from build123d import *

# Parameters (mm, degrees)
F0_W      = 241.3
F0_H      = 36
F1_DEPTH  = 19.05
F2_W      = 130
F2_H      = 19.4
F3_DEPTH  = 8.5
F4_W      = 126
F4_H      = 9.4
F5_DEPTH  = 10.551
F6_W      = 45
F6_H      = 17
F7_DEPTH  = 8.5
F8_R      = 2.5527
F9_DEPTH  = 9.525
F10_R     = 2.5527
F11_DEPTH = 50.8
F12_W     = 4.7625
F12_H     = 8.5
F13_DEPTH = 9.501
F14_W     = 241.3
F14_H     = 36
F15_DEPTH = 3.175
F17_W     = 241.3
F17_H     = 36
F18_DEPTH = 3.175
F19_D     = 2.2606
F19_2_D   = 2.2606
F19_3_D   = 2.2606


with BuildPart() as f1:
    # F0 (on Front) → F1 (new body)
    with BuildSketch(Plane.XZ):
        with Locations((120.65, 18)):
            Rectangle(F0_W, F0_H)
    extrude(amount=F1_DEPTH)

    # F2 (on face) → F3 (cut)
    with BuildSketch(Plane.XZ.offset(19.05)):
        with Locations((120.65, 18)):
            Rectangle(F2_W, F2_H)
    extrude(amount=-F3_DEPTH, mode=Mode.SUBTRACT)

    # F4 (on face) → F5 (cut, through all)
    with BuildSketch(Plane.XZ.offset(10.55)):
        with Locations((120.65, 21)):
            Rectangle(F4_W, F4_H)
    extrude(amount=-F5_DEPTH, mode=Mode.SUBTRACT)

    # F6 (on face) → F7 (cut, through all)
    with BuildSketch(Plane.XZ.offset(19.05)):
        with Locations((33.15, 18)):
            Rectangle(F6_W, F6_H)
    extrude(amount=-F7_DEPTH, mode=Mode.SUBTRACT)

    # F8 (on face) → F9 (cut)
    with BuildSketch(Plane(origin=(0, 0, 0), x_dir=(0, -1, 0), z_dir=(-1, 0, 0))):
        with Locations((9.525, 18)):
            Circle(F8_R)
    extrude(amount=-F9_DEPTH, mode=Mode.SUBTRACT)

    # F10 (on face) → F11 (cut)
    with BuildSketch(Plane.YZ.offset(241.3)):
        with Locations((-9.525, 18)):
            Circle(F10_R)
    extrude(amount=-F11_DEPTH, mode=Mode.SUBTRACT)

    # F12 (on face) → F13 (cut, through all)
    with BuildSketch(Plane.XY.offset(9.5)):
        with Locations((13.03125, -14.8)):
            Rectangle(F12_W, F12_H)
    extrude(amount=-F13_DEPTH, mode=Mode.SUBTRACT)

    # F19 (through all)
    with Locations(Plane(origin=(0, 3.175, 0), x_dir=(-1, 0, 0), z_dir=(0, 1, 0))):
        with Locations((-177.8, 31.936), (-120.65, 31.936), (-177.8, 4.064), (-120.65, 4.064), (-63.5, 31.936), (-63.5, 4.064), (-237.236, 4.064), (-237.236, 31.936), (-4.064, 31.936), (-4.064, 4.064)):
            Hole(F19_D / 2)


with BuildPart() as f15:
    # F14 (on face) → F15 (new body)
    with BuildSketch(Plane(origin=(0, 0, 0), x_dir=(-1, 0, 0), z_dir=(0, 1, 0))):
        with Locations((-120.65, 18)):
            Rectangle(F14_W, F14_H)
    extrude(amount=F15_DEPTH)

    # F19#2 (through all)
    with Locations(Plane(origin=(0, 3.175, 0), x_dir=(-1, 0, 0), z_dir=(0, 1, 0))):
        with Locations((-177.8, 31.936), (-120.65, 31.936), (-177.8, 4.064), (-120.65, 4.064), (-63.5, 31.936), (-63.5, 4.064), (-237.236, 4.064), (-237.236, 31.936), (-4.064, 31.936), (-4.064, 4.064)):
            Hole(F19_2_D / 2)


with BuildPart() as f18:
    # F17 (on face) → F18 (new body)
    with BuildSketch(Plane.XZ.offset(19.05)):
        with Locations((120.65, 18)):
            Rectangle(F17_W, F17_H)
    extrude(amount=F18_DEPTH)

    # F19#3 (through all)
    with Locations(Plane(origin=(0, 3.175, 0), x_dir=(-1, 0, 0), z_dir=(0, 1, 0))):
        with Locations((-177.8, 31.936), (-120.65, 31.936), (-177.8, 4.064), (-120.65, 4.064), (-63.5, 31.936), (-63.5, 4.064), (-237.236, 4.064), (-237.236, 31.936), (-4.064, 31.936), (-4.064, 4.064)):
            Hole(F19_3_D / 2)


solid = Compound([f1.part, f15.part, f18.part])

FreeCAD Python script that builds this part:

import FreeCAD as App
import Part
import Sketcher


def add_polygon(sketch, points):
    """Adds a closed chain of lines whose ends are joined by coincident constraints."""
    first, n = sketch.GeometryCount, len(points)
    for a, b in zip(points, points[1:] + points[:1]):
        sketch.addGeometry(Part.LineSegment(App.Vector(*a, 0), App.Vector(*b, 0)), False)
    for i in range(n):
        sketch.addConstraint(Sketcher.Constraint("Coincident", first + i, 2, first + (i + 1) % n, 1))

doc = App.newDocument("Part")
body = doc.addObject("PartDesign::Body", "Body")

# Sketch on XZ plane
sketch1 = body.newObject("Sketcher::SketchObject", "Sketch")
sketch1.AttachmentSupport = (doc.getObject("XZ_Plane"), [""])
sketch1.MapMode = "FlatFace"
add_polygon(sketch1, [(0, 36), (0, 0), (241, 0), (241, 36)])  # lines 0-3
sketch1.addConstraint([
    Sketcher.Constraint("Vertical", 0),
    Sketcher.Constraint("Horizontal", 1),
    Sketcher.Constraint("Vertical", 2),
    Sketcher.Constraint("Horizontal", 3),
    Sketcher.Constraint("Coincident", 0, 2, -1, 1),
    Sketcher.Constraint("DistanceY", 0, 2, 0, 1, 36.0),
    Sketcher.Constraint("DistanceX", 1, 1, 1, 2, 241.3),
])
pad1 = body.newObject("PartDesign::Pad", "Pad")
pad1.Profile = sketch1
pad1.Length = 19.05

# Sketch on XZ plane
sketch2 = body.newObject("Sketcher::SketchObject", "Sketch001")
sketch2.AttachmentSupport = (doc.getObject("XZ_Plane"), [""])
sketch2.MapMode = "FlatFace"
sketch2.AttachmentOffset = App.Placement(App.Vector(0, 0, 19.05), App.Rotation())
add_polygon(sketch2, [(56, 28), (56, 8), (186, 8), (186, 28)])  # lines 0-3
sketch2.addConstraint([
    Sketcher.Constraint("Vertical", 0),
    Sketcher.Constraint("Horizontal", 1),
    Sketcher.Constraint("Vertical", 2),
    Sketcher.Constraint("Horizontal", 3),
    Sketcher.Constraint("DistanceX", 1, 1, 1, 2, 130.0),
    Sketcher.Constraint("DistanceY", 0, 2, 0, 1, 19.4),
    Sketcher.Constraint("DistanceY", -1, 1, 0, 2, 8.3),
    Sketcher.Constraint("DistanceX", -1, 1, 0, 2, 55.65),
])
pocket1 = body.newObject("PartDesign::Pocket", "Pocket")
pocket1.Profile = sketch2
pocket1.Length = 8.5

# Sketch on XZ plane
sketch3 = body.newObject("Sketcher::SketchObject", "Sketch002")
sketch3.AttachmentSupport = (doc.getObject("XZ_Plane"), [""])
sketch3.MapMode = "FlatFace"
sketch3.AttachmentOffset = App.Placement(App.Vector(0, 0, 10.55), App.Rotation())
add_polygon(sketch3, [(58, 26), (58, 16), (184, 16), (184, 26)])  # lines 0-3
sketch3.addConstraint([
    Sketcher.Constraint("Vertical", 0),
    Sketcher.Constraint("Horizontal", 1),
    Sketcher.Constraint("Vertical", 2),
    Sketcher.Constraint("Horizontal", 3),
    Sketcher.Constraint("DistanceX", 1, 1, 1, 2, 126.0),
    Sketcher.Constraint("DistanceY", 0, 2, 0, 1, 9.4),
    Sketcher.Constraint("DistanceY", -1, 1, 0, 2, 16.3),
    Sketcher.Constraint("DistanceX", -1, 1, 0, 2, 57.65),
])
pocket2 = body.newObject("PartDesign::Pocket", "Pocket001")
pocket2.Profile = sketch3
pocket2.Type = "ThroughAll"

# Sketch on XZ plane
sketch4 = body.newObject("Sketcher::SketchObject", "Sketch003")
sketch4.AttachmentSupport = (doc.getObject("XZ_Plane"), [""])
sketch4.MapMode = "FlatFace"
sketch4.AttachmentOffset = App.Placement(App.Vector(0, 0, 19.05), App.Rotation())
add_polygon(sketch4, [(11, 26), (11, 10), (56, 10), (56, 26)])  # lines 0-3
sketch4.addConstraint([
    Sketcher.Constraint("Vertical", 0),
    Sketcher.Constraint("Horizontal", 1),
    Sketcher.Constraint("Vertical", 2),
    Sketcher.Constraint("Horizontal", 3),
    Sketcher.Constraint("DistanceX", 1, 1, 1, 2, 45.0),
    Sketcher.Constraint("DistanceY", 0, 2, 0, 1, 17.0),
    Sketcher.Constraint("DistanceY", -1, 1, 0, 2, 9.5),
    Sketcher.Constraint("DistanceX", -1, 1, 0, 2, 10.65),
])
pocket3 = body.newObject("PartDesign::Pocket", "Pocket002")
pocket3.Profile = sketch4
pocket3.Length = 8.5

# Sketch on YZ plane
sketch5 = body.newObject("Sketcher::SketchObject", "Sketch004")
sketch5.AttachmentSupport = (doc.getObject("YZ_Plane"), [""])
sketch5.MapMode = "FlatFace"
sketch5.addGeometry(Part.Circle(App.Vector(-9.5, 18, 0), App.Vector(0, 0, 1), 2.6), False)
sketch5.addConstraint([
    Sketcher.Constraint("DistanceY", -1, 1, 0, 3, 18.0),
    Sketcher.Constraint("Diameter", 0, 5.1054),
    Sketcher.Constraint("DistanceX", 0, 3, -1, 1, 9.525),
])
pocket4 = body.newObject("PartDesign::Pocket", "Pocket003")
pocket4.Profile = sketch5
pocket4.Length = 9.525
pocket4.Reversed = True

# Sketch on YZ plane
sketch6 = body.newObject("Sketcher::SketchObject", "Sketch005")
sketch6.AttachmentSupport = (doc.getObject("YZ_Plane"), [""])
sketch6.MapMode = "FlatFace"
sketch6.AttachmentOffset = App.Placement(App.Vector(0, 0, 241.3), App.Rotation())
sketch6.addGeometry(Part.Circle(App.Vector(-9.5, 18, 0), App.Vector(0, 0, 1), 2.6), False)
sketch6.addConstraint([
    Sketcher.Constraint("DistanceY", -1, 1, 0, 3, 18.0),
    Sketcher.Constraint("Diameter", 0, 5.1054),
    Sketcher.Constraint("DistanceX", 0, 3, -1, 1, 9.525),
])
pocket5 = body.newObject("PartDesign::Pocket", "Pocket004")
pocket5.Profile = sketch6
pocket5.Length = 50.8

# Sketch on XY plane
sketch7 = body.newObject("Sketcher::SketchObject", "Sketch006")
sketch7.AttachmentSupport = (doc.getObject("XY_Plane"), [""])
sketch7.MapMode = "FlatFace"
sketch7.AttachmentOffset = App.Placement(App.Vector(0, 0, 9.5), App.Rotation())
add_polygon(sketch7, [(10.7, -10.6), (10.7, -19.1), (15.4, -19.1), (15.4, -10.6)])  # lines 0-3
sketch7.addConstraint([
    Sketcher.Constraint("Vertical", 0),
    Sketcher.Constraint("Horizontal", 1),
    Sketcher.Constraint("Vertical", 2),
    Sketcher.Constraint("Horizontal", 3),
    Sketcher.Constraint("DistanceY", 0, 2, 0, 1, 8.5),
    Sketcher.Constraint("DistanceX", -1, 1, 0, 2, 10.65),
    Sketcher.Constraint("DistanceY", 0, 2, -1, 1, 19.05),
    Sketcher.Constraint("DistanceX", 1, 1, 1, 2, 4.7625),
])
pocket6 = body.newObject("PartDesign::Pocket", "Pocket005")
pocket6.Profile = sketch7
pocket6.Type = "ThroughAll"

# Sketch on XZ plane
sketch8 = body.newObject("Sketcher::SketchObject", "Sketch007")
sketch8.AttachmentSupport = (doc.getObject("XZ_Plane"), [""])
sketch8.MapMode = "FlatFace"
sketch8.AttachmentOffset = App.Placement(App.Vector(0, 0, -3.175), App.Rotation())
sketch8.addGeometry([
    Part.Circle(App.Vector(177.8, 31.9, 0), App.Vector(0, 0, 1), 1.1),  # 0
    Part.Circle(App.Vector(120.7, 31.9, 0), App.Vector(0, 0, 1), 1.1),  # 1
    Part.Circle(App.Vector(177.8, 4.1, 0), App.Vector(0, 0, 1), 1.1),  # 2
    Part.Circle(App.Vector(120.7, 4.1, 0), App.Vector(0, 0, 1), 1.1),  # 3
    Part.Circle(App.Vector(63.5, 31.9, 0), App.Vector(0, 0, 1), 1.1),  # 4
    Part.Circle(App.Vector(63.5, 4.1, 0), App.Vector(0, 0, 1), 1.1),  # 5
    Part.Circle(App.Vector(237.2, 4.1, 0), App.Vector(0, 0, 1), 1.1),  # 6
    Part.Circle(App.Vector(237.2, 31.9, 0), App.Vector(0, 0, 1), 1.1),  # 7
    Part.Circle(App.Vector(4.1, 31.9, 0), App.Vector(0, 0, 1), 1.1),  # 8
    Part.Circle(App.Vector(4.1, 4.1, 0), App.Vector(0, 0, 1), 1.1),  # 9
], False)
sketch8.addConstraint([
    Sketcher.Constraint("Equal", 0, 1),
    Sketcher.Constraint("Equal", 1, 2),
    Sketcher.Constraint("Equal", 2, 3),
    Sketcher.Constraint("Equal", 3, 4),
    Sketcher.Constraint("Equal", 4, 5),
    Sketcher.Constraint("Equal", 5, 6),
    Sketcher.Constraint("Equal", 6, 7),
    Sketcher.Constraint("Equal", 7, 8),
    Sketcher.Constraint("Equal", 8, 9),
    Sketcher.Constraint("Horizontal", 0, 3, 1, 3),
    Sketcher.Constraint("Horizontal", 2, 3, 3, 3),
    Sketcher.Constraint("Horizontal", 1, 3, 4, 3),
    Sketcher.Constraint("Horizontal", 3, 3, 5, 3),
    Sketcher.Constraint("Horizontal", 5, 3, 6, 3),
    Sketcher.Constraint("Horizontal", 4, 3, 7, 3),
    Sketcher.Constraint("Horizontal", 7, 3, 8, 3),
    Sketcher.Constraint("Horizontal", 6, 3, 9, 3),
    Sketcher.Constraint("Vertical", 0, 3, 2, 3),
    Sketcher.Constraint("Vertical", 1, 3, 3, 3),
    Sketcher.Constraint("Vertical", 4, 3, 5, 3),
    Sketcher.Constraint("Vertical", 6, 3, 7, 3),
    Sketcher.Constraint("Vertical", 8, 3, 9, 3),
    Sketcher.Constraint("Diameter", 0, 2.2606),
    Sketcher.Constraint("DistanceX", -1, 1, 0, 3, 177.8),
    Sketcher.Constraint("DistanceX", -1, 1, 4, 3, 63.5),
    Sketcher.Constraint("DistanceX", -1, 1, 1, 3, 120.65),
    Sketcher.Constraint("DistanceY", -1, 1, 0, 3, 31.936),
    Sketcher.Constraint("DistanceY", -1, 1, 2, 3, 4.064),
    Sketcher.Constraint("DistanceX", -1, 1, 6, 3, 237.236),
    Sketcher.Constraint("DistanceX", -1, 1, 8, 3, 4.064),
])
doc.recompute()
hole = body.newObject("PartDesign::Hole", "Hole")
hole.Profile = sketch8
hole.ThreadType = "None"
hole.Diameter = 2.2606
hole.DepthType = "ThroughAll"
hole.Reversed = True
body2 = doc.addObject("PartDesign::Body", "Body001")

# Sketch on XZ plane
sketch9 = body2.newObject("Sketcher::SketchObject", "Sketch008")
sketch9.AttachmentSupport = (doc.getObject("XZ_Plane001"), [""])
sketch9.MapMode = "FlatFace"
add_polygon(sketch9, [(241, 36), (241, 0), (0, 0), (0, 36)])  # lines 0-3
sketch9.addConstraint([
    Sketcher.Constraint("Vertical", 0),
    Sketcher.Constraint("Horizontal", 1),
    Sketcher.Constraint("Vertical", 2),
    Sketcher.Constraint("Horizontal", 3),
    Sketcher.Constraint("Coincident", 1, 2, -1, 1),
    Sketcher.Constraint("DistanceY", 0, 2, 0, 1, 36.0),
    Sketcher.Constraint("DistanceX", 1, 2, 1, 1, 241.3),
])
pad2 = body2.newObject("PartDesign::Pad", "Pad001")
pad2.Profile = sketch9
pad2.Length = 3.175
pad2.Reversed = True

# Sketch on XZ plane
sketch10 = body2.newObject("Sketcher::SketchObject", "Sketch009")
sketch10.AttachmentSupport = (doc.getObject("XZ_Plane001"), [""])
sketch10.MapMode = "FlatFace"
sketch10.AttachmentOffset = App.Placement(App.Vector(0, 0, -3.175), App.Rotation())
sketch10.addGeometry([
    Part.Circle(App.Vector(177.8, 31.9, 0), App.Vector(0, 0, 1), 1.1),  # 0
    Part.Circle(App.Vector(120.7, 31.9, 0), App.Vector(0, 0, 1), 1.1),  # 1
    Part.Circle(App.Vector(177.8, 4.1, 0), App.Vector(0, 0, 1), 1.1),  # 2
    Part.Circle(App.Vector(120.7, 4.1, 0), App.Vector(0, 0, 1), 1.1),  # 3
    Part.Circle(App.Vector(63.5, 31.9, 0), App.Vector(0, 0, 1), 1.1),  # 4
    Part.Circle(App.Vector(63.5, 4.1, 0), App.Vector(0, 0, 1), 1.1),  # 5
    Part.Circle(App.Vector(237.2, 4.1, 0), App.Vector(0, 0, 1), 1.1),  # 6
    Part.Circle(App.Vector(237.2, 31.9, 0), App.Vector(0, 0, 1), 1.1),  # 7
    Part.Circle(App.Vector(4.1, 31.9, 0), App.Vector(0, 0, 1), 1.1),  # 8
    Part.Circle(App.Vector(4.1, 4.1, 0), App.Vector(0, 0, 1), 1.1),  # 9
], False)
sketch10.addConstraint([
    Sketcher.Constraint("Equal", 0, 1),
    Sketcher.Constraint("Equal", 1, 2),
    Sketcher.Constraint("Equal", 2, 3),
    Sketcher.Constraint("Equal", 3, 4),
    Sketcher.Constraint("Equal", 4, 5),
    Sketcher.Constraint("Equal", 5, 6),
    Sketcher.Constraint("Equal", 6, 7),
    Sketcher.Constraint("Equal", 7, 8),
    Sketcher.Constraint("Equal", 8, 9),
    Sketcher.Constraint("Horizontal", 0, 3, 1, 3),
    Sketcher.Constraint("Horizontal", 2, 3, 3, 3),
    Sketcher.Constraint("Horizontal", 1, 3, 4, 3),
    Sketcher.Constraint("Horizontal", 3, 3, 5, 3),
    Sketcher.Constraint("Horizontal", 5, 3, 6, 3),
    Sketcher.Constraint("Horizontal", 4, 3, 7, 3),
    Sketcher.Constraint("Horizontal", 7, 3, 8, 3),
    Sketcher.Constraint("Horizontal", 6, 3, 9, 3),
    Sketcher.Constraint("Vertical", 0, 3, 2, 3),
    Sketcher.Constraint("Vertical", 1, 3, 3, 3),
    Sketcher.Constraint("Vertical", 4, 3, 5, 3),
    Sketcher.Constraint("Vertical", 6, 3, 7, 3),
    Sketcher.Constraint("Vertical", 8, 3, 9, 3),
    Sketcher.Constraint("Diameter", 0, 2.2606),
    Sketcher.Constraint("DistanceX", -1, 1, 0, 3, 177.8),
    Sketcher.Constraint("DistanceX", -1, 1, 4, 3, 63.5),
    Sketcher.Constraint("DistanceX", -1, 1, 1, 3, 120.65),
    Sketcher.Constraint("DistanceY", -1, 1, 0, 3, 31.936),
    Sketcher.Constraint("DistanceY", -1, 1, 2, 3, 4.064),
    Sketcher.Constraint("DistanceX", -1, 1, 6, 3, 237.236),
    Sketcher.Constraint("DistanceX", -1, 1, 8, 3, 4.064),
])
doc.recompute()
hole2 = body2.newObject("PartDesign::Hole", "Hole001")
hole2.Profile = sketch10
hole2.ThreadType = "None"
hole2.Diameter = 2.2606
hole2.DepthType = "ThroughAll"
hole2.Reversed = True
body3 = doc.addObject("PartDesign::Body", "Body002")

# Sketch on XZ plane
sketch11 = body3.newObject("Sketcher::SketchObject", "Sketch010")
sketch11.AttachmentSupport = (doc.getObject("XZ_Plane002"), [""])
sketch11.MapMode = "FlatFace"
sketch11.AttachmentOffset = App.Placement(App.Vector(0, 0, 19.05), App.Rotation())
add_polygon(sketch11, [(0, 36), (0, 0), (241, 0), (241, 36)])  # lines 0-3
sketch11.addConstraint([
    Sketcher.Constraint("Vertical", 0),
    Sketcher.Constraint("Horizontal", 1),
    Sketcher.Constraint("Vertical", 2),
    Sketcher.Constraint("Horizontal", 3),
    Sketcher.Constraint("Coincident", 0, 2, -1, 1),
    Sketcher.Constraint("DistanceY", 0, 2, 0, 1, 36.0),
    Sketcher.Constraint("DistanceX", 1, 1, 1, 2, 241.3),
])
pad3 = body3.newObject("PartDesign::Pad", "Pad002")
pad3.Profile = sketch11
pad3.Length = 3.175

# Sketch on XZ plane
sketch12 = body3.newObject("Sketcher::SketchObject", "Sketch011")
sketch12.AttachmentSupport = (doc.getObject("XZ_Plane002"), [""])
sketch12.MapMode = "FlatFace"
sketch12.AttachmentOffset = App.Placement(App.Vector(0, 0, -3.175), App.Rotation())
sketch12.addGeometry([
    Part.Circle(App.Vector(177.8, 31.9, 0), App.Vector(0, 0, 1), 1.1),  # 0
    Part.Circle(App.Vector(120.7, 31.9, 0), App.Vector(0, 0, 1), 1.1),  # 1
    Part.Circle(App.Vector(177.8, 4.1, 0), App.Vector(0, 0, 1), 1.1),  # 2
    Part.Circle(App.Vector(120.7, 4.1, 0), App.Vector(0, 0, 1), 1.1),  # 3
    Part.Circle(App.Vector(63.5, 31.9, 0), App.Vector(0, 0, 1), 1.1),  # 4
    Part.Circle(App.Vector(63.5, 4.1, 0), App.Vector(0, 0, 1), 1.1),  # 5
    Part.Circle(App.Vector(237.2, 4.1, 0), App.Vector(0, 0, 1), 1.1),  # 6
    Part.Circle(App.Vector(237.2, 31.9, 0), App.Vector(0, 0, 1), 1.1),  # 7
    Part.Circle(App.Vector(4.1, 31.9, 0), App.Vector(0, 0, 1), 1.1),  # 8
    Part.Circle(App.Vector(4.1, 4.1, 0), App.Vector(0, 0, 1), 1.1),  # 9
], False)
sketch12.addConstraint([
    Sketcher.Constraint("Equal", 0, 1),
    Sketcher.Constraint("Equal", 1, 2),
    Sketcher.Constraint("Equal", 2, 3),
    Sketcher.Constraint("Equal", 3, 4),
    Sketcher.Constraint("Equal", 4, 5),
    Sketcher.Constraint("Equal", 5, 6),
    Sketcher.Constraint("Equal", 6, 7),
    Sketcher.Constraint("Equal", 7, 8),
    Sketcher.Constraint("Equal", 8, 9),
    Sketcher.Constraint("Horizontal", 0, 3, 1, 3),
    Sketcher.Constraint("Horizontal", 2, 3, 3, 3),
    Sketcher.Constraint("Horizontal", 1, 3, 4, 3),
    Sketcher.Constraint("Horizontal", 3, 3, 5, 3),
    Sketcher.Constraint("Horizontal", 5, 3, 6, 3),
    Sketcher.Constraint("Horizontal", 4, 3, 7, 3),
    Sketcher.Constraint("Horizontal", 7, 3, 8, 3),
    Sketcher.Constraint("Horizontal", 6, 3, 9, 3),
    Sketcher.Constraint("Vertical", 0, 3, 2, 3),
    Sketcher.Constraint("Vertical", 1, 3, 3, 3),
    Sketcher.Constraint("Vertical", 4, 3, 5, 3),
    Sketcher.Constraint("Vertical", 6, 3, 7, 3),
    Sketcher.Constraint("Vertical", 8, 3, 9, 3),
    Sketcher.Constraint("Diameter", 0, 2.2606),
    Sketcher.Constraint("DistanceX", -1, 1, 0, 3, 177.8),
    Sketcher.Constraint("DistanceX", -1, 1, 4, 3, 63.5),
    Sketcher.Constraint("DistanceX", -1, 1, 1, 3, 120.65),
    Sketcher.Constraint("DistanceY", -1, 1, 0, 3, 31.936),
    Sketcher.Constraint("DistanceY", -1, 1, 2, 3, 4.064),
    Sketcher.Constraint("DistanceX", -1, 1, 6, 3, 237.236),
    Sketcher.Constraint("DistanceX", -1, 1, 8, 3, 4.064),
])
doc.recompute()
hole3 = body3.newObject("PartDesign::Hole", "Hole002")
hole3.Profile = sketch12
hole3.ThreadType = "None"
hole3.Diameter = 2.2606
hole3.DepthType = "ThroughAll"
hole3.Reversed = True

doc.recompute()
